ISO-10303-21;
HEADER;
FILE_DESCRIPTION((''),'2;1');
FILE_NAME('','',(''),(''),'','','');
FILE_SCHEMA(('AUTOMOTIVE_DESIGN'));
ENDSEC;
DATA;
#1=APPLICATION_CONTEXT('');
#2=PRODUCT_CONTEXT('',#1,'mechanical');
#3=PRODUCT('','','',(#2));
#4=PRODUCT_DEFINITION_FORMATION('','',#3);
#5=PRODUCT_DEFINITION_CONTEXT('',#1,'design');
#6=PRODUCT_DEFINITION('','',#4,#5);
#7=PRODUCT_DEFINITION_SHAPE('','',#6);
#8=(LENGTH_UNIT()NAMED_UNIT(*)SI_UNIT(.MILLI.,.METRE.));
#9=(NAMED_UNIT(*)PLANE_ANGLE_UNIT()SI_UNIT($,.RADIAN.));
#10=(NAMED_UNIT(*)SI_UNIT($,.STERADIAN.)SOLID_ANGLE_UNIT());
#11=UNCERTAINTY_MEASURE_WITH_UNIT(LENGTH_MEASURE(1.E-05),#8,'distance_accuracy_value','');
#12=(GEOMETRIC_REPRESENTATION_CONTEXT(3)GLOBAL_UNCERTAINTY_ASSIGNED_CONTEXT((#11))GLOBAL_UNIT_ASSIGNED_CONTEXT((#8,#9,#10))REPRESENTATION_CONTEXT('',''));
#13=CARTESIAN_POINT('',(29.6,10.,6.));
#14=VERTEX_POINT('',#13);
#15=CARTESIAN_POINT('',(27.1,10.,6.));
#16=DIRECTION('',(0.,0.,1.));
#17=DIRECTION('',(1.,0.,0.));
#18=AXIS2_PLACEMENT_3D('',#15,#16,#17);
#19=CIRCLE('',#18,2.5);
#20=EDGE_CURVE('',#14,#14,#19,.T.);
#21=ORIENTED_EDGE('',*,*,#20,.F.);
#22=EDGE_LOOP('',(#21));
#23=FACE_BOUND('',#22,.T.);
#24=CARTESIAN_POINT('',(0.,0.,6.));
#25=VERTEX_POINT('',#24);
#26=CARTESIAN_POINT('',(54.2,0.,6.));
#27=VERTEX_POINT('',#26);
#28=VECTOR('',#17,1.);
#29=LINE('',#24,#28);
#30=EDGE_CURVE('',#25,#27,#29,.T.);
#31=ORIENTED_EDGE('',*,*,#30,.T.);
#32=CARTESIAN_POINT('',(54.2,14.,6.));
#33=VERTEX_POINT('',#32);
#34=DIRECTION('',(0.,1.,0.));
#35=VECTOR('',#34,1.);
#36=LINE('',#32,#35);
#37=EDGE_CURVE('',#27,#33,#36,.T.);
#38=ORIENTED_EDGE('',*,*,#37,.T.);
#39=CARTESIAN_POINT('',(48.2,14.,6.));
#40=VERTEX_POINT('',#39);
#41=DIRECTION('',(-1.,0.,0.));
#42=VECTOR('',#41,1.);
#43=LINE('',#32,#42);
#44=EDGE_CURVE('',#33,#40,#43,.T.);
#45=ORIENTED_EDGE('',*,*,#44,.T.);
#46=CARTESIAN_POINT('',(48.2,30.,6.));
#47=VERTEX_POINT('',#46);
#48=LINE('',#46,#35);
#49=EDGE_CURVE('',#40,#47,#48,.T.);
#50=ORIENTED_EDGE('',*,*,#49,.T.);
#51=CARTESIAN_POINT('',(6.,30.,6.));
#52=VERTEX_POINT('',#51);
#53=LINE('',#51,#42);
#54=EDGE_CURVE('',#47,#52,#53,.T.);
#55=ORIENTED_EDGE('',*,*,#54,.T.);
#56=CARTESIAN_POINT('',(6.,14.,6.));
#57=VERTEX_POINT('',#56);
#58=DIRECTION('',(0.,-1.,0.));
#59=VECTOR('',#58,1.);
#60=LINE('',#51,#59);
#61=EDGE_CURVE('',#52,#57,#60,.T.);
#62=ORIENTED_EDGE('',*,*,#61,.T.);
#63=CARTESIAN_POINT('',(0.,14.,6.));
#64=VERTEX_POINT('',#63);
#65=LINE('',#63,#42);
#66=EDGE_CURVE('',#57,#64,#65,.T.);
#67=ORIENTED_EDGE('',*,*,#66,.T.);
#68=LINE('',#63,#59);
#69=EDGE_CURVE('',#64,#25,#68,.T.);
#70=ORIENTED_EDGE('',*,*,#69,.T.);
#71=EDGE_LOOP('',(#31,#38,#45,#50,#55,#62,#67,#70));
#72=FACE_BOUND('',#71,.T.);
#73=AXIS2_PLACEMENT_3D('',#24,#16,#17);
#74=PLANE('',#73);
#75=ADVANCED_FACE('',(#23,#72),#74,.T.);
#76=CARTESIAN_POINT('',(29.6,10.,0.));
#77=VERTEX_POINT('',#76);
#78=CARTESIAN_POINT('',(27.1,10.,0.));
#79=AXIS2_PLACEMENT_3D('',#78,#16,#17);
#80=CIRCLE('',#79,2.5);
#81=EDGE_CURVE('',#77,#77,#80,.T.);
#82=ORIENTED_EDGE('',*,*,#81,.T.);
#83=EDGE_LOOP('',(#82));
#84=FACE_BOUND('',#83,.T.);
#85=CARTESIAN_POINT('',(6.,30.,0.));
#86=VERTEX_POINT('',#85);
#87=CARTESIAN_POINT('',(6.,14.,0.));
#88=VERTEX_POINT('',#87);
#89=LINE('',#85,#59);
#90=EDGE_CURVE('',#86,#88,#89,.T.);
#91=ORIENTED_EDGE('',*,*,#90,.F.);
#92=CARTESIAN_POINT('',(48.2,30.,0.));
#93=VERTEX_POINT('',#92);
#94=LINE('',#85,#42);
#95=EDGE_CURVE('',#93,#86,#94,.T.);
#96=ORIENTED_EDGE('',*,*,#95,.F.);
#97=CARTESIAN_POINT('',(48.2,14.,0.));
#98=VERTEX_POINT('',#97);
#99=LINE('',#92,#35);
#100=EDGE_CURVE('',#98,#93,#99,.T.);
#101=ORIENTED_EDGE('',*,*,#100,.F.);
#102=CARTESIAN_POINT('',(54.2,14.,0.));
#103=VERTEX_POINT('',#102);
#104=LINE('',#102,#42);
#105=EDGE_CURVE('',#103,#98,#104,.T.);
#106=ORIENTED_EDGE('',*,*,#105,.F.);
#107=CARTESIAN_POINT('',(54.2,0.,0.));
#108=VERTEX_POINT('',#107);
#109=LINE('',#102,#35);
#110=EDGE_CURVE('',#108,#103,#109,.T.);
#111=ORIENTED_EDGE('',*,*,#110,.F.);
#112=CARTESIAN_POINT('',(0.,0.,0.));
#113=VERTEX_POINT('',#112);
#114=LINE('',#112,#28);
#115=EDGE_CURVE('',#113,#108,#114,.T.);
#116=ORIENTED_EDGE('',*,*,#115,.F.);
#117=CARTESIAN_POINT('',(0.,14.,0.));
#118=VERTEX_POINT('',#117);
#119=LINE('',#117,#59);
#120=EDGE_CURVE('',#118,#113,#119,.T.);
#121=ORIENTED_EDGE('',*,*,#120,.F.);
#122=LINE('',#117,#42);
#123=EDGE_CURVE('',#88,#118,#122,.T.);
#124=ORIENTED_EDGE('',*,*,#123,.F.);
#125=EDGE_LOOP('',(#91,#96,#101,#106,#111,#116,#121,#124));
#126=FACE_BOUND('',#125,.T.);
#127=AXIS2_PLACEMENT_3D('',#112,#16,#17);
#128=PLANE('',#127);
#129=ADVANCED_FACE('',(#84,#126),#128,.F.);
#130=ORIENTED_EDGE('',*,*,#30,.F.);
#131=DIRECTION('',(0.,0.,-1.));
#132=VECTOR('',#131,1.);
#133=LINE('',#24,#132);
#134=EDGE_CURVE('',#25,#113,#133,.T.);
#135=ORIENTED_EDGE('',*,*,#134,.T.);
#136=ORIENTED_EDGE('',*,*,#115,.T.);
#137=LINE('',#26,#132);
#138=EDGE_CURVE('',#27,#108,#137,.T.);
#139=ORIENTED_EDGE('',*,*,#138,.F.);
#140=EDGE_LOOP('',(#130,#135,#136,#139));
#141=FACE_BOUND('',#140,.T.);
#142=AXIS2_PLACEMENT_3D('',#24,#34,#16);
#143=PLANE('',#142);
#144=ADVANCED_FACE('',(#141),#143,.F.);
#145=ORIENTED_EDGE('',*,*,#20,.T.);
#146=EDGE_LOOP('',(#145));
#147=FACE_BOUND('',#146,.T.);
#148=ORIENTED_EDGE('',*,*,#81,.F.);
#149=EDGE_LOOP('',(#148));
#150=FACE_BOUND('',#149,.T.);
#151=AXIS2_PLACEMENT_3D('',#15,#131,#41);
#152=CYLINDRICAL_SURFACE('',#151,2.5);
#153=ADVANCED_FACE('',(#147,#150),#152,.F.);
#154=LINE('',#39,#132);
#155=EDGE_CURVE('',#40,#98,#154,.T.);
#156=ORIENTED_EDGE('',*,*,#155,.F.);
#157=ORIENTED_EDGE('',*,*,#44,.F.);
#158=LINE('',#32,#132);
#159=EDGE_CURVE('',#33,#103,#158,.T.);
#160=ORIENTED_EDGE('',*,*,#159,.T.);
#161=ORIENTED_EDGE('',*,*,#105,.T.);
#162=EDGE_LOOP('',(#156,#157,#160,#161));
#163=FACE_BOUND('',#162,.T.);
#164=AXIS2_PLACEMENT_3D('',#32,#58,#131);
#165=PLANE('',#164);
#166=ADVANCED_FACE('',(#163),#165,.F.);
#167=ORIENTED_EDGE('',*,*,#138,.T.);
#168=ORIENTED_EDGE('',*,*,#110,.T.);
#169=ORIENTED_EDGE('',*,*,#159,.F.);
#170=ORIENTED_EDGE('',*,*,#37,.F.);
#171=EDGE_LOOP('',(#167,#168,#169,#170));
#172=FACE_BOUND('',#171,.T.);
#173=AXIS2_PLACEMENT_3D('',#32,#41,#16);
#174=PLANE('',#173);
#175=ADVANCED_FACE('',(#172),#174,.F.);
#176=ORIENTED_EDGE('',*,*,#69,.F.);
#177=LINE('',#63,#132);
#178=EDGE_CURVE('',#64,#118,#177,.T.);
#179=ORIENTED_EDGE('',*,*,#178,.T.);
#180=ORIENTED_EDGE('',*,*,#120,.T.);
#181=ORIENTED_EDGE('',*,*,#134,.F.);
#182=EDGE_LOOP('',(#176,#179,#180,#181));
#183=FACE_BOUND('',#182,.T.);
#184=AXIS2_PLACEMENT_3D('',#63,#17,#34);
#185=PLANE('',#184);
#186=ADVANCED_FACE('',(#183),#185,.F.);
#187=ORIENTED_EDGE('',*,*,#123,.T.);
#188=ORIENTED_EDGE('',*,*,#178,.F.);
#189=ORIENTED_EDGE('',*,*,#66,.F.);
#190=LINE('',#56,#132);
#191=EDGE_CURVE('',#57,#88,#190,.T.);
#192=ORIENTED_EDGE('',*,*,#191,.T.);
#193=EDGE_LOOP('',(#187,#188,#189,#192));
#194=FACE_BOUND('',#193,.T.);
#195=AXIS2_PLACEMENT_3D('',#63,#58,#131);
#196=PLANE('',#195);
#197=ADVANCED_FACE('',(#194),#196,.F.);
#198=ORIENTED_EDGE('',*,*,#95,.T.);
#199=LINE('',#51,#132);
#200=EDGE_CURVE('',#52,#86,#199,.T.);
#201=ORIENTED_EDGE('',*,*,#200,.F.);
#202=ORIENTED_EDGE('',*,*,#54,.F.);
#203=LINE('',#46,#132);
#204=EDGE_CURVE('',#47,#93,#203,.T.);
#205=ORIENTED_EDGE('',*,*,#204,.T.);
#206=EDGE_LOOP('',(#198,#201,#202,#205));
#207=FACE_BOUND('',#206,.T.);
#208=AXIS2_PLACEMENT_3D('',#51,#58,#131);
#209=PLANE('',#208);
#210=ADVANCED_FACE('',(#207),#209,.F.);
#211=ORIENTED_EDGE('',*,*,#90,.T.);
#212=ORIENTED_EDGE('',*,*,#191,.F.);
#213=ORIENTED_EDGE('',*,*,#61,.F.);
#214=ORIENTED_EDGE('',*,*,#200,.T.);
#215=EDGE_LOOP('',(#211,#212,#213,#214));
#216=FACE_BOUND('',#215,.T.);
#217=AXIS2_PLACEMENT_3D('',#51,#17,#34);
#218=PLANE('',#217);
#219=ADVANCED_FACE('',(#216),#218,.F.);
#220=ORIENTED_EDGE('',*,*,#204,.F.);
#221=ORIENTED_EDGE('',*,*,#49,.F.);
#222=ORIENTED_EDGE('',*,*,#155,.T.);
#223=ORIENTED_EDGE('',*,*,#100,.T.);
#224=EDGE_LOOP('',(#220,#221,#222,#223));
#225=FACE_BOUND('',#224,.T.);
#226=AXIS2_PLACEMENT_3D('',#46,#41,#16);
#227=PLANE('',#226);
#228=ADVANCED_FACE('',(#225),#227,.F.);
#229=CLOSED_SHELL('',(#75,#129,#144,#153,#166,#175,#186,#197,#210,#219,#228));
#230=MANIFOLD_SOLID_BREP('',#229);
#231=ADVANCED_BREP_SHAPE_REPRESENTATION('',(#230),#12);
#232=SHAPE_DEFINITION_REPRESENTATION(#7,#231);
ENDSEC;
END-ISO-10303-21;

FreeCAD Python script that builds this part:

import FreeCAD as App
import Part
import Sketcher

V = App.Vector
Q = App.Units.Quantity


def add_polygon(sketch, points):
    """Adds a closed chain of lines whose ends are joined by coincident constraints."""
    first, n = sketch.GeometryCount, len(points)
    for a, b in zip(points, points[1:] + points[:1]):
        sketch.addGeometry(Part.LineSegment(App.Vector(*a, 0), App.Vector(*b, 0)), False)
    for i in range(n):
        sketch.addConstraint(Sketcher.Constraint("Coincident", first + i, 2, first + (i + 1) % n, 1))

doc = App.newDocument("Part")
body = doc.addObject("PartDesign::Body", "Body")

# Sketch on XY plane
sketch1 = doc.addObject("Sketcher::SketchObject", "Sketch")
body.addObject(sketch1)
sketch1.AttachmentSupport = (doc.XY_Plane, [""])
sketch1.MapMode = "FlatFace"
add_polygon(sketch1, [(48.2, 30), (6, 30), (6, 14), (0, 14), (0, 0), (54.2, 0), (54.2, 14), (48.2, 14)])  # lines 0-7
sketch1.addGeometry(Part.Circle(V(27.1, 10, 0), V(0, 0, 1), 2.5), False)  # 8
sketch1.addConstraint([
    Sketcher.Constraint("Horizontal", 0),
    Sketcher.Constraint("Vertical", 1),
    Sketcher.Constraint("Horizontal", 2),
    Sketcher.Constraint("Vertical", 3),
    Sketcher.Constraint("Horizontal", 4),
    Sketcher.Constraint("Vertical", 5),
    Sketcher.Constraint("Horizontal", 6),
    Sketcher.Constraint("Vertical", 7),
    Sketcher.Constraint("Coincident", 3, 2, -1, 1),
    Sketcher.Constraint("Horizontal", 2, 2, 5, 2),
    Sketcher.Constraint("Equal", 2, 6),
    Sketcher.Constraint("Diameter", 8, Q("5 mm")),
    Sketcher.Constraint("DistanceX", 2, 2, 2, 1, Q("6 mm")),
    Sketcher.Constraint("DistanceY", 1, 2, 1, 1, Q("16 mm")),
    Sketcher.Constraint("DistanceY", 3, 2, 3, 1, Q("14 mm")),
    Sketcher.Constraint("DistanceX", 0, 2, 0, 1, Q("42.2 mm")),
    Sketcher.Constraint("DistanceY", -1, 1, 8, 3, Q("10 mm")),
    Sketcher.Constraint("DistanceX", -1, 1, 8, 3, Q("27.1 mm")),
])
pad1 = doc.addObject("PartDesign::Pad", "Pad")
body.addObject(pad1)
pad1.Profile = sketch1
pad1.Length = 6

doc.recompute()
